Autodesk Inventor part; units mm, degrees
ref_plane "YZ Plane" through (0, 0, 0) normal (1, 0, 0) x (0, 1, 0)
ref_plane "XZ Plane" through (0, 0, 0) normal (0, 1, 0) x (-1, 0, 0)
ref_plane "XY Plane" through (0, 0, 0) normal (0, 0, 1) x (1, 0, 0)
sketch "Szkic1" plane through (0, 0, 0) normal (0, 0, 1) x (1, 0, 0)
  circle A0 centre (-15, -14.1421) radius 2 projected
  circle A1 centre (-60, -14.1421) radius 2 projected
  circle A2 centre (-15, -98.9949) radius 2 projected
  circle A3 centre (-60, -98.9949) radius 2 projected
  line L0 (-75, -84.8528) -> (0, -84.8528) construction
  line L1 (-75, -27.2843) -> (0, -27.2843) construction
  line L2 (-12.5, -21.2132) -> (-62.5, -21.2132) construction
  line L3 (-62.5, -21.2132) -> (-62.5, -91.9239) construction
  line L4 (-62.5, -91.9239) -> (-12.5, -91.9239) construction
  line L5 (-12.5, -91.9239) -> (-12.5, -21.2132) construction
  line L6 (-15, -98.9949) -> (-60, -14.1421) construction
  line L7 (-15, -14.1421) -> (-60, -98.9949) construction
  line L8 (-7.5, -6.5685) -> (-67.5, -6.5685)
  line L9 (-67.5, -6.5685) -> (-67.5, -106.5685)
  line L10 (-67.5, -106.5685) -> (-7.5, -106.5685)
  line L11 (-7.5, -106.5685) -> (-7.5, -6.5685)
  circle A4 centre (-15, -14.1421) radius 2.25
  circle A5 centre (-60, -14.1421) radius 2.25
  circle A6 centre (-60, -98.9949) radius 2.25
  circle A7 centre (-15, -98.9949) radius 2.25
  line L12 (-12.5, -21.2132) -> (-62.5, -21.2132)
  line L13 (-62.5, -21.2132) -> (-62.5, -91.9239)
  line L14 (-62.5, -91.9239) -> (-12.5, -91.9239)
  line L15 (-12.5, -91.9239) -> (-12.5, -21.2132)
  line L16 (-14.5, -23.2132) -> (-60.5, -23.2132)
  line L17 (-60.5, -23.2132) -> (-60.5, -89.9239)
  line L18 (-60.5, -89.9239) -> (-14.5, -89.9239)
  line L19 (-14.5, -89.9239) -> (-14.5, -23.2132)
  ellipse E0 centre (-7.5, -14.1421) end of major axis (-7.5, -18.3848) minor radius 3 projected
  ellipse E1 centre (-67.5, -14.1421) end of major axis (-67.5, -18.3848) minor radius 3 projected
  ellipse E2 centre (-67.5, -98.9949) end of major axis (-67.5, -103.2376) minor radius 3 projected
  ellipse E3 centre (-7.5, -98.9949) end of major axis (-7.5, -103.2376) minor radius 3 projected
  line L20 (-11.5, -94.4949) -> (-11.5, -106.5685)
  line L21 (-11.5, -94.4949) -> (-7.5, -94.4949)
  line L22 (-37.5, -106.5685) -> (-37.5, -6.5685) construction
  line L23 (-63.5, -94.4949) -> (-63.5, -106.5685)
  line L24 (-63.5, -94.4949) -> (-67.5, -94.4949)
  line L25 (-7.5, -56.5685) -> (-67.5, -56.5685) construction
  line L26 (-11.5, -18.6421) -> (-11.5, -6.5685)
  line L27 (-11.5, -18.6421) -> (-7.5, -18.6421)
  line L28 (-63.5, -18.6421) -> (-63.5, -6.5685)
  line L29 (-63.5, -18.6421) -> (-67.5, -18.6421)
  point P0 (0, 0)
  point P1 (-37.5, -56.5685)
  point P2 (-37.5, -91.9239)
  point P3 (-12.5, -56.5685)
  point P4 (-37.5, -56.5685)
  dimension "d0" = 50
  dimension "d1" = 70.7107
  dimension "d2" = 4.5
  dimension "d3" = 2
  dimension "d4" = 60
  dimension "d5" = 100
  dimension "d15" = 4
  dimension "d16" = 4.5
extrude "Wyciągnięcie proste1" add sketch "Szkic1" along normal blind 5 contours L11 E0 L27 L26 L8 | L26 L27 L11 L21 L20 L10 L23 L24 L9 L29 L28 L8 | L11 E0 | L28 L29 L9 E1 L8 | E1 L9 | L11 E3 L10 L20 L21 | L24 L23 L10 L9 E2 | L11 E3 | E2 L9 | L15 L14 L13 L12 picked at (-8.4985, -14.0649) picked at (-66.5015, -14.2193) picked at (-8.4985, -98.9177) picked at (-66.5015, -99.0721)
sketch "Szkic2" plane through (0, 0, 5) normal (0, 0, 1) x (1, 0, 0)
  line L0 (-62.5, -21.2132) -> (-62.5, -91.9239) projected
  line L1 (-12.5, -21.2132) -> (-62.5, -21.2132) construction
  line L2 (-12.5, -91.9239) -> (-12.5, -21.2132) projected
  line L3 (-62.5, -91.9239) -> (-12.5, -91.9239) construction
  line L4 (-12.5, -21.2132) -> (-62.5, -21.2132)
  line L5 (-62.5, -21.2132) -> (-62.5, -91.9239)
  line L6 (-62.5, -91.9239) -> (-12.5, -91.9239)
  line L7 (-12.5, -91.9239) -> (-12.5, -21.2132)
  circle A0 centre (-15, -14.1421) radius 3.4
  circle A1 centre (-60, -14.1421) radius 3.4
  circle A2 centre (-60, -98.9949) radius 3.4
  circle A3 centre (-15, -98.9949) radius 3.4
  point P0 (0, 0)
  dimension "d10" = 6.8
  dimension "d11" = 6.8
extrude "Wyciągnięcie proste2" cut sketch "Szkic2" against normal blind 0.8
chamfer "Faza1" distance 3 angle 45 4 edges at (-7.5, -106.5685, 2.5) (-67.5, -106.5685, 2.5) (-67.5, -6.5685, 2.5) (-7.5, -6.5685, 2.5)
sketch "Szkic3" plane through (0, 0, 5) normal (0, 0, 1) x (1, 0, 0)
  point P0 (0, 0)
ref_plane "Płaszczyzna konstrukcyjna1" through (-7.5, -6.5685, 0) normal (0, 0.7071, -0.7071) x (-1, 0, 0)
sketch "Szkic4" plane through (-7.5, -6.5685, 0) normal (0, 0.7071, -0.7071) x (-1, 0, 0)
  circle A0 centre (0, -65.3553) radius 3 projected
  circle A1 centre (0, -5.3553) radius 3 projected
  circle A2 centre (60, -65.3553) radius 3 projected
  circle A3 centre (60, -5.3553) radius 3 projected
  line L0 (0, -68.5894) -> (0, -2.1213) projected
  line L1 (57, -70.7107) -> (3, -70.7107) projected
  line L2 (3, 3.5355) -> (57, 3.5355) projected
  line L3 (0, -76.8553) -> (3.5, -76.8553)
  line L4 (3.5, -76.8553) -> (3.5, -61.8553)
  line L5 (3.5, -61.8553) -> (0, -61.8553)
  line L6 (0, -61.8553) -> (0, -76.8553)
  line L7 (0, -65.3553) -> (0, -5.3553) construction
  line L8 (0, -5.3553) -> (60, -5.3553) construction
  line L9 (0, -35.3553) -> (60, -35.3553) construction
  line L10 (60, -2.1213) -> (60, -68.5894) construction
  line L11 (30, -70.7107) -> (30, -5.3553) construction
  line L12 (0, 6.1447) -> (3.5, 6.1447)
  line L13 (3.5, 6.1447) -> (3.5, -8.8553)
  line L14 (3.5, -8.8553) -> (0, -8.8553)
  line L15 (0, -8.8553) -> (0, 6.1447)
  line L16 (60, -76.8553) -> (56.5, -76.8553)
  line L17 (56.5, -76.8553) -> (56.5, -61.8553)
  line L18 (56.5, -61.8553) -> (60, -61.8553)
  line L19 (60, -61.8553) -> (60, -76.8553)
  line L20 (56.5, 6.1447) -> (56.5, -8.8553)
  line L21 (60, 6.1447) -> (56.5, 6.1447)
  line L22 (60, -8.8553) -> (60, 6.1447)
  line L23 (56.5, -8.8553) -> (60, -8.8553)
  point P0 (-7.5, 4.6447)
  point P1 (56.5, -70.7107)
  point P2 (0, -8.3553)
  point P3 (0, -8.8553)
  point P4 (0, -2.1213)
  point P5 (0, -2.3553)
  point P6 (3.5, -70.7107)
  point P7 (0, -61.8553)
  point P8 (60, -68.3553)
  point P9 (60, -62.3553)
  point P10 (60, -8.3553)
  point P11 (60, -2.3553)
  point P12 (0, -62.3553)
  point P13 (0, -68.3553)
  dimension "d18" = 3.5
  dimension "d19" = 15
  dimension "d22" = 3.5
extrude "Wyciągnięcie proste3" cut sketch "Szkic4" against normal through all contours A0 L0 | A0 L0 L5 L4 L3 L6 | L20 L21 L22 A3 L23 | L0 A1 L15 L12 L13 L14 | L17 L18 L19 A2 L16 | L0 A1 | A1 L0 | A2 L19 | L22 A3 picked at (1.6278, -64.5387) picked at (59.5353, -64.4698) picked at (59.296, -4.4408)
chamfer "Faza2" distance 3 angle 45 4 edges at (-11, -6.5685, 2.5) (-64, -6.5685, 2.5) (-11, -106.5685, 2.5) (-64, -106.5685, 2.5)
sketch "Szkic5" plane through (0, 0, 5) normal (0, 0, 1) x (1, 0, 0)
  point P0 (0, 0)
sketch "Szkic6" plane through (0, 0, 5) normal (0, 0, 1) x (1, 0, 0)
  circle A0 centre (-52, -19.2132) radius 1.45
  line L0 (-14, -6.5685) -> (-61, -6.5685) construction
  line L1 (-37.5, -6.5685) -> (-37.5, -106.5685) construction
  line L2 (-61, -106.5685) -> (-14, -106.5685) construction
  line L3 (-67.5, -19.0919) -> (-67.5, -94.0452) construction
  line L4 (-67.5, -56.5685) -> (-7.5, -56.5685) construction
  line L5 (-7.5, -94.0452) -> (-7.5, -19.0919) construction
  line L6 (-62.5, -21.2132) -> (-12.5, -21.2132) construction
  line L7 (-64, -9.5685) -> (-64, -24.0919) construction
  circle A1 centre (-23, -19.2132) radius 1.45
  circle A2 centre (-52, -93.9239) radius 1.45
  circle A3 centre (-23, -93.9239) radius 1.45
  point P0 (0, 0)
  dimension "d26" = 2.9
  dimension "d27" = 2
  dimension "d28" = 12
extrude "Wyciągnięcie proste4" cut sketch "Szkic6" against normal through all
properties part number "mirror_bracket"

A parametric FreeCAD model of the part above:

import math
import FreeCAD as App
import Part
import Sketcher


def edges_at(feature, points):
    """Names of the edges that pass closest to the given points."""
    edges = feature.Shape.Edges
    near = lambda p: min(range(len(edges)), key=lambda i: edges[i].distToShape(Part.Vertex(*p))[0])
    return sorted({f"Edge{near(p) + 1}" for p in points})

doc = App.newDocument("Part")
body = doc.addObject("PartDesign::Body", "Body")

# Sketch on XY plane
sketch1 = body.newObject("Sketcher::SketchObject", "Sketch")
sketch1.AttachmentSupport = (doc.getObject("XY_Plane"), [""])
sketch1.MapMode = "FlatFace"
sketch1.addGeometry([
    Part.LineSegment(App.Vector(-7.5, -6.6, 0), App.Vector(-67.5, -6.6, 0)),  # 0
    Part.LineSegment(App.Vector(-67.5, -6.6, 0), App.Vector(-67.5, -106.6, 0)),  # 1
    Part.LineSegment(App.Vector(-67.5, -106.6, 0), App.Vector(-7.5, -106.6, 0)),  # 2
    Part.LineSegment(App.Vector(-7.5, -106.6, 0), App.Vector(-7.5, -6.6, 0)),  # 3
    Part.Circle(App.Vector(-60, -14.1, 0), App.Vector(0, 0, 1), 2.2),  # 4
    Part.Circle(App.Vector(-15, -14.1, 0), App.Vector(0, 0, 1), 2.2),  # 5
    Part.Circle(App.Vector(-60, -99, 0), App.Vector(0, 0, 1), 2.2),  # 6
    Part.Circle(App.Vector(-15, -99, 0), App.Vector(0, 0, 1), 2.2),  # 7
    Part.LineSegment(App.Vector(-60.5, -23.2, 0), App.Vector(-14.5, -23.2, 0)),  # 8
    Part.LineSegment(App.Vector(-14.5, -23.2, 0), App.Vector(-14.5, -89.9, 0)),  # 9
    Part.LineSegment(App.Vector(-14.5, -89.9, 0), App.Vector(-60.5, -89.9, 0)),  # 10
    Part.LineSegment(App.Vector(-60.5, -89.9, 0), App.Vector(-60.5, -23.2, 0)),  # 11
], False)
sketch1.addConstraint([
    Sketcher.Constraint("Coincident", 0, 2, 1, 1),
    Sketcher.Constraint("Coincident", 1, 2, 2, 1),
    Sketcher.Constraint("Coincident", 2, 2, 3, 1),
    Sketcher.Constraint("Coincident", 3, 2, 0, 1),
    Sketcher.Constraint("Coincident", 8, 2, 9, 1),
    Sketcher.Constraint("Coincident", 9, 2, 10, 1),
    Sketcher.Constraint("Coincident", 10, 2, 11, 1),
    Sketcher.Constraint("Coincident", 11, 2, 8, 1),
    Sketcher.Constraint("Horizontal", 0),
    Sketcher.Constraint("Vertical", 1),
    Sketcher.Constraint("Horizontal", 2),
    Sketcher.Constraint("Vertical", 3),
    Sketcher.Constraint("Horizontal", 8),
    Sketcher.Constraint("Vertical", 9),
    Sketcher.Constraint("Horizontal", 10),
    Sketcher.Constraint("Vertical", 11),
    Sketcher.Constraint("Equal", 4, 5),
    Sketcher.Constraint("Equal", 5, 6),
    Sketcher.Constraint("Equal", 6, 7),
    Sketcher.Constraint("Horizontal", 4, 3, 5, 3),
    Sketcher.Constraint("Horizontal", 6, 3, 7, 3),
    Sketcher.Constraint("Vertical", 4, 3, 6, 3),
    Sketcher.Constraint("Vertical", 5, 3, 7, 3),
    Sketcher.Constraint("Diameter", 4, 4.5),
    Sketcher.Constraint("DistanceX", 0, 2, 0, 1, 60.0),
    Sketcher.Constraint("DistanceY", 1, 2, 1, 1, 100.0),
    Sketcher.Constraint("DistanceX", 4, 3, -1, 1, 60.0),
    Sketcher.Constraint("DistanceX", 8, 1, 8, 2, 46.0),
    Sketcher.Constraint("DistanceX", 5, 3, -1, 1, 15.0),
    Sketcher.Constraint("DistanceX", 8, 2, 3, 2, 7.0),
    Sketcher.Constraint("DistanceX", 0, 2, -1, 1, 67.5),
    Sketcher.Constraint("DistanceY", 9, 2, 9, 1, 66.7107),
    Sketcher.Constraint("DistanceY", 4, 3, -1, 1, 14.142),
    Sketcher.Constraint("DistanceY", 6, 3, -1, 1, 98.995),
    Sketcher.Constraint("DistanceY", 9, 2, -1, 1, 89.924),
    Sketcher.Constraint("DistanceY", 0, 2, -1, 1, 6.5685),
])
pad1 = body.newObject("PartDesign::Pad", "Pad")
pad1.Profile = sketch1
pad1.Length = 5

# Sketch on XY plane
sketch2 = body.newObject("Sketcher::SketchObject", "Sketch001")
sketch2.AttachmentSupport = (doc.getObject("XY_Plane"), [""])
sketch2.MapMode = "FlatFace"
sketch2.AttachmentOffset = App.Placement(App.Vector(0, 0, 5), App.Rotation())
sketch2.addGeometry([
    Part.LineSegment(App.Vector(-12.5, -21.2, 0), App.Vector(-62.5, -21.2, 0)),  # 0
    Part.LineSegment(App.Vector(-62.5, -21.2, 0), App.Vector(-62.5, -91.9, 0)),  # 1
    Part.LineSegment(App.Vector(-62.5, -91.9, 0), App.Vector(-12.5, -91.9, 0)),  # 2
    Part.LineSegment(App.Vector(-12.5, -91.9, 0), App.Vector(-12.5, -21.2, 0)),  # 3
    Part.Circle(App.Vector(-15, -14.1, 0), App.Vector(0, 0, 1), 3.4),  # 4
    Part.Circle(App.Vector(-60, -14.1, 0), App.Vector(0, 0, 1), 3.4),  # 5
    Part.Circle(App.Vector(-60, -99, 0), App.Vector(0, 0, 1), 3.4),  # 6
    Part.Circle(App.Vector(-15, -99, 0), App.Vector(0, 0, 1), 3.4),  # 7
], False)
sketch2.addConstraint([
    Sketcher.Constraint("Coincident", 0, 2, 1, 1),
    Sketcher.Constraint("Coincident", 1, 2, 2, 1),
    Sketcher.Constraint("Coincident", 2, 2, 3, 1),
    Sketcher.Constraint("Coincident", 3, 2, 0, 1),
    Sketcher.Constraint("Horizontal", 0),
    Sketcher.Constraint("Vertical", 1),
    Sketcher.Constraint("Horizontal", 2),
    Sketcher.Constraint("Vertical", 3),
    Sketcher.Constraint("Equal", 4, 5),
    Sketcher.Constraint("Equal", 5, 6),
    Sketcher.Constraint("Equal", 6, 7),
    Sketcher.Constraint("Horizontal", 4, 3, 5, 3),
    Sketcher.Constraint("Horizontal", 6, 3, 7, 3),
    Sketcher.Constraint("Vertical", 5, 3, 6, 3),
    Sketcher.Constraint("Vertical", 4, 3, 7, 3),
    Sketcher.Constraint("Diameter", 4, 6.8),
    Sketcher.Constraint("DistanceX", 0, 2, 0, 1, 50.0),
    Sketcher.Constraint("DistanceX", 4, 3, -1, 1, 15.0),
    Sketcher.Constraint("DistanceX", 5, 3, -1, 1, 60.0),
    Sketcher.Constraint("DistanceX", 0, 2, -1, 1, 62.5),
    Sketcher.Constraint("DistanceY", 1, 2, 1, 1, 70.7107),
    Sketcher.Constraint("DistanceY", 4, 3, -1, 1, 14.142),
    Sketcher.Constraint("DistanceY", 6, 3, -1, 1, 98.995),
    Sketcher.Constraint("DistanceY", 1, 2, -1, 1, 91.924),
])
pocket1 = body.newObject("PartDesign::Pocket", "Pocket")
pocket1.Profile = sketch2
pocket1.Length = 0.8
doc.recompute()

chamfer = body.newObject("PartDesign::Chamfer", "Chamfer")
chamfer.Base = (pocket1, edges_at(pocket1, [
    (-7.5, -106.569, 2.5),
    (-67.5, -106.569, 2.5),
    (-67.5, -6.569, 2.5),
    (-7.5, -6.569, 2.5),
]))
chamfer.Size = 3

# Sketch on an angled plane
sketch3 = body.newObject("Sketcher::SketchObject", "Sketch002")
sketch3.Placement = App.Placement(App.Vector(-7.5, -6.5685, 0), App.Rotation(App.Vector(-1, 0, 0), App.Vector(0, 0.707106781, 0.707106781), App.Vector(0, 0.707106781, -0.707106781), "ZXY"))
sketch3.addGeometry([
    Part.LineSegment(App.Vector(0, -76.86, 0), App.Vector(3.5, -76.86, 0)),  # 0
    Part.LineSegment(App.Vector(3.5, -76.86, 0), App.Vector(3.5, -61.86, 0)),  # 1
    Part.LineSegment(App.Vector(3.5, -61.86, 0), App.Vector(0, -61.86, 0)),  # 2
    Part.LineSegment(App.Vector(0, -61.86, 0), App.Vector(0, -76.86, 0)),  # 3
    Part.LineSegment(App.Vector(56.5, 6.14, 0), App.Vector(56.5, -8.86, 0)),  # 4
    Part.LineSegment(App.Vector(56.5, -8.86, 0), App.Vector(60, -8.86, 0)),  # 5
    Part.LineSegment(App.Vector(60, -8.86, 0), App.Vector(60, 6.14, 0)),  # 6
    Part.LineSegment(App.Vector(60, 6.14, 0), App.Vector(56.5, 6.14, 0)),  # 7
    Part.LineSegment(App.Vector(0, -8.36, 0), App.Vector(0, -8.86, 0)),  # 8
    Part.LineSegment(App.Vector(0, -8.86, 0), App.Vector(3.5, -8.86, 0)),  # 9
    Part.LineSegment(App.Vector(3.5, -8.86, 0), App.Vector(3.5, 6.14, 0)),  # 10
    Part.LineSegment(App.Vector(3.5, 6.14, 0), App.Vector(0, 6.14, 0)),  # 11
    Part.LineSegment(App.Vector(0, 6.14, 0), App.Vector(0, -2.36, 0)),  # 12
    Part.ArcOfCircle(Part.Circle(App.Vector(0, -5.36, 0), App.Vector(0, 0, 1), 3), math.radians(90), math.radians(270)),  # 13
    Part.LineSegment(App.Vector(56.5, -61.86, 0), App.Vector(56.5, -76.86, 0)),  # 14
    Part.LineSegment(App.Vector(56.5, -76.86, 0), App.Vector(60, -76.86, 0)),  # 15
    Part.LineSegment(App.Vector(60, -76.86, 0), App.Vector(60, -61.86, 0)),  # 16
    Part.LineSegment(App.Vector(60, -61.86, 0), App.Vector(56.5, -61.86, 0)),  # 17
], False)
sketch3.addConstraint([
    Sketcher.Constraint("Coincident", 0, 2, 1, 1),
    Sketcher.Constraint("Coincident", 1, 2, 2, 1),
    Sketcher.Constraint("Coincident", 2, 2, 3, 1),
    Sketcher.Constraint("Coincident", 3, 2, 0, 1),
    Sketcher.Constraint("Coincident", 4, 2, 5, 1),
    Sketcher.Constraint("Coincident", 5, 2, 6, 1),
    Sketcher.Constraint("Coincident", 6, 2, 7, 1),
    Sketcher.Constraint("Coincident", 7, 2, 4, 1),
    Sketcher.Constraint("Coincident", 8, 2, 9, 1),
    Sketcher.Constraint("Coincident", 9, 2, 10, 1),
    Sketcher.Constraint("Coincident", 10, 2, 11, 1),
    Sketcher.Constraint("Coincident", 11, 2, 12, 1),
    Sketcher.Constraint("Coincident", 12, 2, 13, 1),
    Sketcher.Constraint("Coincident", 13, 2, 8, 1),
    Sketcher.Constraint("Coincident", 14, 2, 15, 1),
    Sketcher.Constraint("Coincident", 15, 2, 16, 1),
    Sketcher.Constraint("Coincident", 16, 2, 17, 1),
    Sketcher.Constraint("Coincident", 17, 2, 14, 1),
    Sketcher.Constraint("Horizontal", 0),
    Sketcher.Constraint("Vertical", 1),
    Sketcher.Constraint("Horizontal", 2),
    Sketcher.Constraint("Vertical", 3),
    Sketcher.Constraint("Vertical", 4),
    Sketcher.Constraint("Horizontal", 5),
    Sketcher.Constraint("Vertical", 6),
    Sketcher.Constraint("Horizontal", 7),
    Sketcher.Constraint("Vertical", 8),
    Sketcher.Constraint("Horizontal", 9),
    Sketcher.Constraint("Vertical", 10),
    Sketcher.Constraint("Horizontal", 11),
    Sketcher.Constraint("Vertical", 12),
    Sketcher.Constraint("Vertical", 14),
    Sketcher.Constraint("Horizontal", 15),
    Sketcher.Constraint("Vertical", 16),
    Sketcher.Constraint("Horizontal", 17),
    Sketcher.Constraint("PointOnObject", 13, 3, -2),
    Sketcher.Constraint("PointOnObject", 2, 2, -2),
    Sketcher.Constraint("PointOnObject", 8, 2, -2),
    Sketcher.Constraint("PointOnObject", 11, 2, -2),
    Sketcher.Constraint("Horizontal", 5, 2, 8, 2),
    Sketcher.Constraint("Horizontal", 7, 2, 10, 2),
    Sketcher.Constraint("Horizontal", 3, 2, 14, 2),
    Sketcher.Constraint("Horizontal", 2, 2, 16, 2),
    Sketcher.Constraint("Vertical", 1, 2, 9, 2),
    Sketcher.Constraint("Vertical", 7, 2, 14, 2),
    Sketcher.Constraint("Vertical", 6, 2, 15, 2),
    Sketcher.Constraint("Equal", 2, 5),
    Sketcher.Constraint("Equal", 3, 4),
    Sketcher.Constraint("DistanceY", 1, 1, 1, 2, 15.0),
    Sketcher.Constraint("DistanceX", 0, 1, 0, 2, 3.5),
    Sketcher.Constraint("Radius", 13, 3.0),
    Sketcher.Constraint("DistanceY", 4, 2, 13, 3, 3.5),
    Sketcher.Constraint("DistanceX", -1, 1, 5, 2, 60.0),
    Sketcher.Constraint("DistanceY", 1, 2, 4, 2, 53.0),
    Sketcher.Constraint("DistanceY", 13, 3, -1, 1, 5.3553),
])
pocket2 = body.newObject("PartDesign::Pocket", "Pocket001")
pocket2.Profile = sketch3
pocket2.Type = "ThroughAll"
doc.recompute()

chamfer2 = body.newObject("PartDesign::Chamfer", "Chamfer001")
chamfer2.Base = (pocket2, edges_at(pocket2, [
    (-11, -6.569, 2.5),
    (-64, -6.569, 2.5),
    (-11, -106.569, 2.5),
    (-64, -106.569, 2.5),
]))
chamfer2.Size = 3

# Sketch on XY plane
sketch4 = body.newObject("Sketcher::SketchObject", "Sketch003")
sketch4.AttachmentSupport = (doc.getObject("XY_Plane"), [""])
sketch4.MapMode = "FlatFace"
sketch4.AttachmentOffset = App.Placement(App.Vector(0, 0, 5), App.Rotation())
sketch4.addGeometry([
    Part.Circle(App.Vector(-52, -19.2, 0), App.Vector(0, 0, 1), 1.4),
    Part.Circle(App.Vector(-23, -19.2, 0), App.Vector(0, 0, 1), 1.4),
    Part.Circle(App.Vector(-52, -93.9, 0), App.Vector(0, 0, 1), 1.4),
    Part.Circle(App.Vector(-23, -93.9, 0), App.Vector(0, 0, 1), 1.4),
], False)
sketch4.addConstraint([
    Sketcher.Constraint("Equal", 0, 1),
    Sketcher.Constraint("Equal", 1, 2),
    Sketcher.Constraint("Equal", 2, 3),
    Sketcher.Constraint("Horizontal", 0, 3, 1, 3),
    Sketcher.Constraint("Horizontal", 2, 3, 3, 3),
    Sketcher.Constraint("Vertical", 0, 3, 2, 3),
    Sketcher.Constraint("Vertical", 1, 3, 3, 3),
    Sketcher.Constraint("Diameter", 0, 2.9),
    Sketcher.Constraint("DistanceX", 0, 3, -1, 1, 52.0),
    Sketcher.Constraint("DistanceX", 1, 3, -1, 1, 23.0),
    Sketcher.Constraint("DistanceY", 2, 3, -1, 1, 93.924),
    Sketcher.Constraint("DistanceY", 0, 3, -1, 1, 19.2132),
])
pocket3 = body.newObject("PartDesign::Pocket", "Pocket002")
pocket3.Profile = sketch4
pocket3.Type = "ThroughAll"

doc.recompute()
